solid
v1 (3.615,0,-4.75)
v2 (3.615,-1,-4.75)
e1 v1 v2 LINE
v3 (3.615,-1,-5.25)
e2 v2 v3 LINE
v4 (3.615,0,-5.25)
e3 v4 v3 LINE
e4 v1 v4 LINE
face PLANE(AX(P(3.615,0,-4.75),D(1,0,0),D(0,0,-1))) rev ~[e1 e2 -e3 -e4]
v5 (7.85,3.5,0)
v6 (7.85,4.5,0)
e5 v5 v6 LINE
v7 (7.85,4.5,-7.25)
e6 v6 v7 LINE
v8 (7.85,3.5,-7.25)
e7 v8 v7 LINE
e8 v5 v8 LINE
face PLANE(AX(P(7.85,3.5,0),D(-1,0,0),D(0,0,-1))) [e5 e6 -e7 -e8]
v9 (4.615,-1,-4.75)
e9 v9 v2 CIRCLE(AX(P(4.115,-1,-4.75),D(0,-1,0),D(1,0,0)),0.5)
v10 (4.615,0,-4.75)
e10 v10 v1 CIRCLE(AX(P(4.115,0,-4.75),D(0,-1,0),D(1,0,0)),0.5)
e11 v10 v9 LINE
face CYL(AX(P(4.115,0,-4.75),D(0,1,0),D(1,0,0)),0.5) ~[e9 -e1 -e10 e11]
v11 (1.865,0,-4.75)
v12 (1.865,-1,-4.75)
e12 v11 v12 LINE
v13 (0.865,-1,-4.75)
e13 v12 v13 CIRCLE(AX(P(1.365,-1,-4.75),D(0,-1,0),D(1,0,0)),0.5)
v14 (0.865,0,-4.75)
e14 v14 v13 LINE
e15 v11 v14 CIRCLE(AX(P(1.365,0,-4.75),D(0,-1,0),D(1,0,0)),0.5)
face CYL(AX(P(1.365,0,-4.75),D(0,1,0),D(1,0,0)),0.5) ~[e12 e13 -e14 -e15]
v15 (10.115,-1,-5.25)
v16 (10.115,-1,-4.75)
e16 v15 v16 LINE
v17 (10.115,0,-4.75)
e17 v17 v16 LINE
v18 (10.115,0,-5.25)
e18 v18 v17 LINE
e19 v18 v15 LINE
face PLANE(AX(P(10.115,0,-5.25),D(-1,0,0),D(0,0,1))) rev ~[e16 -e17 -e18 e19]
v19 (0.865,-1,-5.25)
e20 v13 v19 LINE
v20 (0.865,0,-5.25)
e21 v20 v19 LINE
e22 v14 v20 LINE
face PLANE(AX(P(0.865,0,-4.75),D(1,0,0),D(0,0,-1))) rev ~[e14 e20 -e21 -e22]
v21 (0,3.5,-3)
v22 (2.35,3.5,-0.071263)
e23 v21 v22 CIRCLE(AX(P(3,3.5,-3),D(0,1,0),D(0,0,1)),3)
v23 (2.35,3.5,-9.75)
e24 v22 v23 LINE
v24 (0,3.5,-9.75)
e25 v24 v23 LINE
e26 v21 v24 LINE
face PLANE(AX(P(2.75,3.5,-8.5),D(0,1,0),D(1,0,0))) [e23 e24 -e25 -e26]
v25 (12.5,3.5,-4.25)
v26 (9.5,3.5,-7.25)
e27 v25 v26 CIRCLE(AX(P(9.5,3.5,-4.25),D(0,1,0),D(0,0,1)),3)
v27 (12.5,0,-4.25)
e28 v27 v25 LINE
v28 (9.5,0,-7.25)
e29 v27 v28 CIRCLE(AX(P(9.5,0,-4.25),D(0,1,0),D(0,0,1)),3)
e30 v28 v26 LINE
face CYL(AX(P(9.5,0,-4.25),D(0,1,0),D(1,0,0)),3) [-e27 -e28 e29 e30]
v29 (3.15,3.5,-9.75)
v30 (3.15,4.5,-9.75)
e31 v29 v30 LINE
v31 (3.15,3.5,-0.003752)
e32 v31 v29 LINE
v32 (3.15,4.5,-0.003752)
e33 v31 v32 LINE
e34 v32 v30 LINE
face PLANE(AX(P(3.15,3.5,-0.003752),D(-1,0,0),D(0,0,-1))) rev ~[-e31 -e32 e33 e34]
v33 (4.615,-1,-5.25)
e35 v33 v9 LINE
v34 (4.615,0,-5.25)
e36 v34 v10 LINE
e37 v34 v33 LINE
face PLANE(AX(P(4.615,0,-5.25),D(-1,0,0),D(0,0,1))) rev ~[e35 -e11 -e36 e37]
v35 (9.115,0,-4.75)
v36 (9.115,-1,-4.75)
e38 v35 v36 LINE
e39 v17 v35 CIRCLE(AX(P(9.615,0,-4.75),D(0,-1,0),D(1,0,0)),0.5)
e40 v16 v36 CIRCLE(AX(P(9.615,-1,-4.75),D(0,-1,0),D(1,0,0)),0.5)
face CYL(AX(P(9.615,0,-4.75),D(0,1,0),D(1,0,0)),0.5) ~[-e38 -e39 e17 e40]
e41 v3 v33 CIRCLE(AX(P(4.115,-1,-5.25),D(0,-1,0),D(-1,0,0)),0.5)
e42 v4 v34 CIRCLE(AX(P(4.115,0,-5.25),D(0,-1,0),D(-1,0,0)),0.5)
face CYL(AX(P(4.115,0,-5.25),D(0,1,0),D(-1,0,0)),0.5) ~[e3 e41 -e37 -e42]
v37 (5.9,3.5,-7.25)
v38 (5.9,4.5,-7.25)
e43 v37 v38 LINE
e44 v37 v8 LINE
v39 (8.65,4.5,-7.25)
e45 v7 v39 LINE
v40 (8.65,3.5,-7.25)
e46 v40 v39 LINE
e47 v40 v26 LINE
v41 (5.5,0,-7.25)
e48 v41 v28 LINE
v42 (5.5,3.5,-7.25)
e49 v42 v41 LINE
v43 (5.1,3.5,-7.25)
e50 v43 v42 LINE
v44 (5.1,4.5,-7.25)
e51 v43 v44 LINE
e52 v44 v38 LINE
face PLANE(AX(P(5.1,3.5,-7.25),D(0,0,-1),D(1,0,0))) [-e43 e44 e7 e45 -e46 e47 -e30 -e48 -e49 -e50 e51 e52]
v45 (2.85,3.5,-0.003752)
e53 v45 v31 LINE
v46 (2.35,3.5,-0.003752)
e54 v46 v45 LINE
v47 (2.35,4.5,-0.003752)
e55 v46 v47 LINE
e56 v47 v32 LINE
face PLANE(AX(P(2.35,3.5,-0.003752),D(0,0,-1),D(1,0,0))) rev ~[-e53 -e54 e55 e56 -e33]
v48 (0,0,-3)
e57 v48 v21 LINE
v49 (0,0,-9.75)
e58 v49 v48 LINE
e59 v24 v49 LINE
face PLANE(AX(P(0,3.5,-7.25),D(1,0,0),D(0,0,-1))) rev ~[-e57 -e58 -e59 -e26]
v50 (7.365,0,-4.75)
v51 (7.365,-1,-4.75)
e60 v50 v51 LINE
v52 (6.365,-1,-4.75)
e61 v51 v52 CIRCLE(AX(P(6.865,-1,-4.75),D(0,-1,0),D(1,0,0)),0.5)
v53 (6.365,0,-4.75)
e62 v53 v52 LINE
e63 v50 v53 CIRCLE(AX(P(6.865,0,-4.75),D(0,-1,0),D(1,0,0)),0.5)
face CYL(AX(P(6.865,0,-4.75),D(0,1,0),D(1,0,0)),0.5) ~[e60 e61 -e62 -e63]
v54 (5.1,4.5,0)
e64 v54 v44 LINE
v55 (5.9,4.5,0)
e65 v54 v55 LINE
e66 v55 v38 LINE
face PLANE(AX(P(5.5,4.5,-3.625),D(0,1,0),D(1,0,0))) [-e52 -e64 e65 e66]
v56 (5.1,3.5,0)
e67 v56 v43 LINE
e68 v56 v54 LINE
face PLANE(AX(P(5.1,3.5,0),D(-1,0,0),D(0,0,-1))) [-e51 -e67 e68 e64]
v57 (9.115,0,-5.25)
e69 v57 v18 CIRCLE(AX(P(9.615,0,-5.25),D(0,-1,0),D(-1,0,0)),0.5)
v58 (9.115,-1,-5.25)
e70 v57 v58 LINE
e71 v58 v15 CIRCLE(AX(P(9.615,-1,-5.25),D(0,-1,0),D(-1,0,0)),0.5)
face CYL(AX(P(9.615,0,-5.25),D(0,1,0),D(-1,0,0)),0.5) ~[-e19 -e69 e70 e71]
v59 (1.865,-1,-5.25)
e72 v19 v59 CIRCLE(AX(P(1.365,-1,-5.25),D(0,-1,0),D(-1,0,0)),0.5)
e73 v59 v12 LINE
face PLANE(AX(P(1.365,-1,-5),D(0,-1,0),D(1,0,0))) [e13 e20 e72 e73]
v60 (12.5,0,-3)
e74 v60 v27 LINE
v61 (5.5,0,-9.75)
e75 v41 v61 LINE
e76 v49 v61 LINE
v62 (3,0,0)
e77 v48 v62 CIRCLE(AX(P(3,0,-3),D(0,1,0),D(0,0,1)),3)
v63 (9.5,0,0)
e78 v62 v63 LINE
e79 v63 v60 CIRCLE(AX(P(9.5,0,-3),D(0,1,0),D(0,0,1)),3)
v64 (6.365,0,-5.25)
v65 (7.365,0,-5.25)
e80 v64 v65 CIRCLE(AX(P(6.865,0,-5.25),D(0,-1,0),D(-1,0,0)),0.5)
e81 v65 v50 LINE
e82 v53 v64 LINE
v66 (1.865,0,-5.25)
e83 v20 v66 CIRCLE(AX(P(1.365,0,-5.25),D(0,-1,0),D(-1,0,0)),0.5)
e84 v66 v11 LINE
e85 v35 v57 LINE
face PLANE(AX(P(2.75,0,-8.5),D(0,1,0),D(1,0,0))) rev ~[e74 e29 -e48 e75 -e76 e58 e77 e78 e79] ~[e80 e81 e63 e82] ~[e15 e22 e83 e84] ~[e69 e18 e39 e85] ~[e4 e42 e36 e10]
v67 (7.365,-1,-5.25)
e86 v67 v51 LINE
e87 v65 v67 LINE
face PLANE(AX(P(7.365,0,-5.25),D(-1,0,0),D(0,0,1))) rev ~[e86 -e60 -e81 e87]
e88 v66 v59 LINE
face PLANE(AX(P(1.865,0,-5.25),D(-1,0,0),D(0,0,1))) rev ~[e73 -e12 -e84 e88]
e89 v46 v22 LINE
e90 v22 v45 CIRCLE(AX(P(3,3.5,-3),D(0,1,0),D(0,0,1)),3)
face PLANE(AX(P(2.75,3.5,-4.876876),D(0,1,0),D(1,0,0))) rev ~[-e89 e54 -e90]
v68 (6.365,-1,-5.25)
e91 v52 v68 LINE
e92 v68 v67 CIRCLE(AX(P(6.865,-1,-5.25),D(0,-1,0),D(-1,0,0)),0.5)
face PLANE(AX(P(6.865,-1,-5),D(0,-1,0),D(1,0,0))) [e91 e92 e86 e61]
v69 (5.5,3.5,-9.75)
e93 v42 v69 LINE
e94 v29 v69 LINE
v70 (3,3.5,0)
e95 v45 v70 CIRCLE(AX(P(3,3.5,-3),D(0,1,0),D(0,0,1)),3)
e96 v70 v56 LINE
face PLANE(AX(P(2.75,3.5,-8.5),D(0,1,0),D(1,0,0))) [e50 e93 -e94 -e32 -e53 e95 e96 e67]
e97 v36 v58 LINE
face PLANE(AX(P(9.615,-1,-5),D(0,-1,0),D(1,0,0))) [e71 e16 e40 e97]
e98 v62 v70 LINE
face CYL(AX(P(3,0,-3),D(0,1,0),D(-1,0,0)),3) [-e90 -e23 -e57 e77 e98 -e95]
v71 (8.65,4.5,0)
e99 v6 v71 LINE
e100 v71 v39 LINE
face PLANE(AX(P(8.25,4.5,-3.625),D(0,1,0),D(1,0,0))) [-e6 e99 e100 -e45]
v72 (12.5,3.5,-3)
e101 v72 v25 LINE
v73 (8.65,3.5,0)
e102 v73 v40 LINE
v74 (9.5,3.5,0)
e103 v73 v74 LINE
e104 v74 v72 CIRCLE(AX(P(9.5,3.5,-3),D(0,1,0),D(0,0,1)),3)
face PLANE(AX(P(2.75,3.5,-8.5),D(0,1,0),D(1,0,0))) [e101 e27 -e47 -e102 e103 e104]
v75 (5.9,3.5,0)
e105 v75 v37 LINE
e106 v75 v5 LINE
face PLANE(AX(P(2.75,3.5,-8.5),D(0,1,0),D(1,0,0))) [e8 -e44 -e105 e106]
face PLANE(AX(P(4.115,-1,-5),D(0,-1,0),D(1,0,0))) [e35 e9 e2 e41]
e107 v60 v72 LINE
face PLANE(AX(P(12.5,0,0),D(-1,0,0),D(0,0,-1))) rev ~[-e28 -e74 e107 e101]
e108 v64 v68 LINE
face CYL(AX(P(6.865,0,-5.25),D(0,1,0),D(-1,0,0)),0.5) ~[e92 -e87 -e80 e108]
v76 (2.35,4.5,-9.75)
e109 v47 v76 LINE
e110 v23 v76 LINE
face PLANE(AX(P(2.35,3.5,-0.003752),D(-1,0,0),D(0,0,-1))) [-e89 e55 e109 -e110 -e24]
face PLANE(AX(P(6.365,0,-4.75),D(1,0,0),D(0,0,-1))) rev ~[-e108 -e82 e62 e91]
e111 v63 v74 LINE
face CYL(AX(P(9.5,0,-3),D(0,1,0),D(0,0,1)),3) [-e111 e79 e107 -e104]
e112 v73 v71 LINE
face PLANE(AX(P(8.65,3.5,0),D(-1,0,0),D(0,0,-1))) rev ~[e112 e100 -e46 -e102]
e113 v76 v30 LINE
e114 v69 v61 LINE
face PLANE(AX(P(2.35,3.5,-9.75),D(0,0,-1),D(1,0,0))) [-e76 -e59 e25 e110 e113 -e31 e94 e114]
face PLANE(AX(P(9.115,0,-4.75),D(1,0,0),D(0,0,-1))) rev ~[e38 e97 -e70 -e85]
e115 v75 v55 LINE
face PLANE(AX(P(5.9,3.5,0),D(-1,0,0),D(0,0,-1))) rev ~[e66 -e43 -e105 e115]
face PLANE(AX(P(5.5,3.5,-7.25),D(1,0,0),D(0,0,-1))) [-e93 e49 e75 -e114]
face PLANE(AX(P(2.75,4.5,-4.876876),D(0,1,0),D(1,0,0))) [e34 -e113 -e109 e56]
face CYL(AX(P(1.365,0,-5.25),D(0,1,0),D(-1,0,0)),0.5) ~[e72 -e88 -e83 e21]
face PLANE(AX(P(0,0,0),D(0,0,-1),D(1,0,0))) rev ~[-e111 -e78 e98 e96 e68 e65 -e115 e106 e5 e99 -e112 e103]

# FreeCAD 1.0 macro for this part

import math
import FreeCAD as App
import Part
import Sketcher
from FreeCAD import Vector
Q = App.Units.Quantity


def edges_at(feature, points):
    """Names of the edges that pass closest to the given points."""
    edges = feature.Shape.Edges
    near = lambda p: min(range(len(edges)), key=lambda i: edges[i].distToShape(Part.Vertex(*p))[0])
    return sorted({f"Edge{near(p) + 1}" for p in points})

doc = App.newDocument("Part")
params = doc.addObject("Spreadsheet::Sheet", "Params")
for row, (alias, value) in enumerate([
    ("sketch1_width", "12.5 mm"),
    ("sketch1_height", "7.25 mm"),
    ("pad1_length", "3.5 mm"),
    ("fillet_radius", "3 mm"),
    ("sketch2_width", "5.5 mm"),
    ("sketch2_height", "2.5 mm"),
    ("pad2_length", "3.5 mm"),
    ("sketch3_width", "0.8 mm"),
    ("sketch3_height", "7.25 mm"),
    ("pad3_length", "1 mm"),
    ("sketch4_radius", "0.5 mm"),
    ("sketch4_height", "0.5 mm"),
    ("pad4_length", "1 mm"),
], start=1):
    params.set(f"A{row}", alias)
    params.set(f"B{row}", "=" + value)
    params.setAlias(f"B{row}", alias)

body = doc.addObject("PartDesign::Body", "Body")

sketch1 = doc.addObject("Sketcher::SketchObject", "Sketch")
body.addObject(sketch1)
sketch1.AttachmentSupport = (doc.XZ_Plane, [""])
sketch1.MapMode = "FlatFace"
sketch1.addGeometry([
    Part.LineSegment(Vector(0, -7, 0), Vector(0, 0, 0)),
    Part.LineSegment(Vector(0, 0, 0), Vector(12, 0, 0)),
    Part.LineSegment(Vector(12, 0, 0), Vector(12, -7, 0)),
    Part.LineSegment(Vector(12, -7, 0), Vector(0, -7, 0)),
], False)
sketch1.addConstraint([
    Sketcher.Constraint("Coincident", 0, 2, 1, 1),
    Sketcher.Constraint("Coincident", 1, 2, 2, 1),
    Sketcher.Constraint("Coincident", 2, 2, 3, 1),
    Sketcher.Constraint("Coincident", 3, 2, 0, 1),
    Sketcher.Constraint("Vertical", 0),
    Sketcher.Constraint("Horizontal", 1),
    Sketcher.Constraint("Vertical", 2),
    Sketcher.Constraint("Horizontal", 3),
    Sketcher.Constraint("Coincident", 0, 2, -1, 1),
    Sketcher.Constraint("DistanceX", 1, 1, 1, 2, Q("12.5 mm")),
    Sketcher.Constraint("DistanceY", 0, 1, 0, 2, Q("7.25 mm")),
])
sketch1.setExpression("Constraints[9]", "Params.sketch1_width")
sketch1.setExpression("Constraints[10]", "Params.sketch1_height")
pad1 = doc.addObject("PartDesign::Pad", "Pad")
body.addObject(pad1)
pad1.Profile = sketch1
pad1.setExpression("Length", "Params.pad1_length")
pad1.Reversed = True
doc.recompute()

fillet = doc.addObject("PartDesign::Fillet", "Fillet")
body.addObject(fillet)
fillet.Base = (pad1, edges_at(pad1, [(12.5, 1.75, -7.25), (12.5, 1.75, 0), (0, 1.75, 0)]))
fillet.setExpression("Radius", "Params.fillet_radius")

sketch2 = doc.addObject("Sketcher::SketchObject", "Sketch001")
body.addObject(sketch2)
sketch2.AttachmentSupport = (doc.XZ_Plane, [""])
sketch2.MapMode = "FlatFace"
sketch2.AttachmentOffset = App.Placement(Vector(0, 0, -3.5), App.Rotation())
sketch2.addGeometry([
    Part.LineSegment(Vector(0, -9.8, 0), Vector(0, -7.2, 0)),
    Part.LineSegment(Vector(0, -7.2, 0), Vector(5.5, -7.2, 0)),
    Part.LineSegment(Vector(5.5, -7.2, 0), Vector(5.5, -9.8, 0)),
    Part.LineSegment(Vector(5.5, -9.8, 0), Vector(0, -9.8, 0)),
], False)
sketch2.addConstraint([
    Sketcher.Constraint("Coincident", 0, 2, 1, 1),
    Sketcher.Constraint("Coincident", 1, 2, 2, 1),
    Sketcher.Constraint("Coincident", 2, 2, 3, 1),
    Sketcher.Constraint("Coincident", 3, 2, 0, 1),
    Sketcher.Constraint("Vertical", 0),
    Sketcher.Constraint("Horizontal", 1),
    Sketcher.Constraint("Vertical", 2),
    Sketcher.Constraint("Horizontal", 3),
    Sketcher.Constraint("PointOnObject", 0, 2, -2),
    Sketcher.Constraint("DistanceX", 1, 1, 1, 2, Q("5.5 mm")),
    Sketcher.Constraint("DistanceY", 0, 1, 0, 2, Q("2.5 mm")),
    Sketcher.Constraint("DistanceY", 0, 2, -1, 1, Q("7.25 mm")),
])
sketch2.setExpression("Constraints[9]", "Params.sketch2_width")
sketch2.setExpression("Constraints[10]", "Params.sketch2_height")
pad2 = doc.addObject("PartDesign::Pad", "Pad001")
body.addObject(pad2)
pad2.Profile = sketch2
pad2.setExpression("Length", "Params.pad2_length")

sketch3 = doc.addObject("Sketcher::SketchObject", "Sketch002")
body.addObject(sketch3)
sketch3.AttachmentSupport = (doc.XZ_Plane, [""])
sketch3.MapMode = "FlatFace"
sketch3.AttachmentOffset = App.Placement(Vector(0, 0, -3.5), App.Rotation())
sketch3.addGeometry([
    Part.LineSegment(Vector(2.4, -9.8, 0), Vector(2.4, 0, 0)),
    Part.LineSegment(Vector(2.4, 0, 0), Vector(3.1, 0, 0)),
    Part.LineSegment(Vector(3.1, 0, 0), Vector(3.1, -9.8, 0)),
    Part.LineSegment(Vector(3.1, -9.8, 0), Vector(2.4, -9.8, 0)),
    Part.LineSegment(Vector(5.1, -7.2, 0), Vector(5.1, 0, 0)),
    Part.LineSegment(Vector(5.1, 0, 0), Vector(5.9, 0, 0)),
    Part.LineSegment(Vector(5.9, 0, 0), Vector(5.9, -7.2, 0)),
    Part.LineSegment(Vector(5.9, -7.2, 0), Vector(5.1, -7.2, 0)),
    Part.LineSegment(Vector(7.8, -7.2, 0), Vector(7.8, 0, 0)),
    Part.LineSegment(Vector(7.8, 0, 0), Vector(8.7, 0, 0)),
    Part.LineSegment(Vector(8.7, 0, 0), Vector(8.7, -7.2, 0)),
    Part.LineSegment(Vector(8.7, -7.2, 0), Vector(7.8, -7.2, 0)),
], False)
sketch3.addConstraint([
    Sketcher.Constraint("Coincident", 0, 2, 1, 1),
    Sketcher.Constraint("Coincident", 1, 2, 2, 1),
    Sketcher.Constraint("Coincident", 2, 2, 3, 1),
    Sketcher.Constraint("Coincident", 3, 2, 0, 1),
    Sketcher.Constraint("Coincident", 4, 2, 5, 1),
    Sketcher.Constraint("Coincident", 5, 2, 6, 1),
    Sketcher.Constraint("Coincident", 6, 2, 7, 1),
    Sketcher.Constraint("Coincident", 7, 2, 4, 1),
    Sketcher.Constraint("Coincident", 8, 2, 9, 1),
    Sketcher.Constraint("Coincident", 9, 2, 10, 1),
    Sketcher.Constraint("Coincident", 10, 2, 11, 1),
    Sketcher.Constraint("Coincident", 11, 2, 8, 1),
    Sketcher.Constraint("Vertical", 0),
    Sketcher.Constraint("Horizontal", 1),
    Sketcher.Constraint("Vertical", 2),
    Sketcher.Constraint("Horizontal", 3),
    Sketcher.Constraint("Vertical", 4),
    Sketcher.Constraint("Horizontal", 5),
    Sketcher.Constraint("Vertical", 6),
    Sketcher.Constraint("Horizontal", 7),
    Sketcher.Constraint("Vertical", 8),
    Sketcher.Constraint("Horizontal", 9),
    Sketcher.Constraint("Vertical", 10),
    Sketcher.Constraint("Horizontal", 11),
    Sketcher.Constraint("PointOnObject", 4, 2, -1),
    Sketcher.Constraint("PointOnObject", 8, 2, -1),
    Sketcher.Constraint("Horizontal", 7, 2, 10, 2),
    Sketcher.Constraint("Equal", 3, 5),
    Sketcher.Constraint("Equal", 7, 9),
    Sketcher.Constraint("DistanceX", 1, 1, 1, 2, Q("0.8 mm")),
    Sketcher.Constraint("DistanceY", 4, 1, 4, 2, Q("7.25 mm")),
    Sketcher.Constraint("DistanceX", -1, 1, 4, 2, Q("5.1 mm")),
    Sketcher.Constraint("DistanceY", 2, 2, 6, 2, Q("2.5 mm")),
    Sketcher.Constraint("DistanceX", 1, 2, 8, 2, Q("4.7 mm")),
    Sketcher.Constraint("DistanceX", -1, 1, 0, 2, Q("2.35 mm")),
    Sketcher.Constraint("DistanceY", 0, 1, 0, 2, Q("9.746248 mm")),
])
sketch3.setExpression("Constraints[29]", "Params.sketch3_width")
sketch3.setExpression("Constraints[30]", "Params.sketch3_height")
pad3 = doc.addObject("PartDesign::Pad", "Pad002")
body.addObject(pad3)
pad3.Profile = sketch3
pad3.setExpression("Length", "Params.pad3_length")
pad3.Reversed = True

sketch4 = doc.addObject("Sketcher::SketchObject", "Sketch003")
body.addObject(sketch4)
sketch4.AttachmentSupport = (doc.XZ_Plane, [""])
sketch4.MapMode = "FlatFace"
sketch4.addGeometry([
    Part.LineSegment(Vector(6.4, -4.8, 0), Vector(6.4, -5.2, 0)),
    Part.ArcOfCircle(Part.Circle(Vector(6.9, -5.2, 0), Vector(0, 0, 1), 0.5), math.radians(180), math.radians(360)),
    Part.LineSegment(Vector(7.4, -5.2, 0), Vector(7.4, -4.8, 0)),
    Part.ArcOfCircle(Part.Circle(Vector(6.9, -4.8, 0), Vector(0, 0, 1), 0.5), math.radians(0), math.radians(180)),
    Part.LineSegment(Vector(9.1, -4.8, 0), Vector(9.1, -5.2, 0)),
    Part.ArcOfCircle(Part.Circle(Vector(9.6, -5.2, 0), Vector(0, 0, 1), 0.5), math.radians(180), math.radians(360)),
    Part.LineSegment(Vector(10.1, -5.2, 0), Vector(10.1, -4.8, 0)),
    Part.ArcOfCircle(Part.Circle(Vector(9.6, -4.8, 0), Vector(0, 0, 1), 0.5), math.radians(0), math.radians(180)),
    Part.LineSegment(Vector(4.6, -5.2, 0), Vector(4.6, -4.8, 0)),
    Part.ArcOfCircle(Part.Circle(Vector(4.1, -4.8, 0), Vector(0, 0, 1), 0.5), math.radians(0), math.radians(180)),
    Part.LineSegment(Vector(3.6, -4.8, 0), Vector(3.6, -5.2, 0)),
    Part.ArcOfCircle(Part.Circle(Vector(4.1, -5.2, 0), Vector(0, 0, 1), 0.5), math.radians(180), math.radians(360)),
    Part.LineSegment(Vector(0.9, -4.8, 0), Vector(0.9, -5.2, 0)),
    Part.ArcOfCircle(Part.Circle(Vector(1.4, -5.2, 0), Vector(0, 0, 1), 0.5), math.radians(180), math.radians(360)),
    Part.LineSegment(Vector(1.9, -5.2, 0), Vector(1.9, -4.8, 0)),
    Part.ArcOfCircle(Part.Circle(Vector(1.4, -4.8, 0), Vector(0, 0, 1), 0.5), math.radians(0), math.radians(180)),
], False)
sketch4.addConstraint([
    Sketcher.Constraint("Tangent", 0, 2, 1, 1),
    Sketcher.Constraint("Tangent", 1, 2, 2, 1),
    Sketcher.Constraint("Tangent", 2, 2, 3, 1),
    Sketcher.Constraint("Tangent", 3, 2, 0, 1),
    Sketcher.Constraint("Tangent", 4, 2, 5, 1),
    Sketcher.Constraint("Tangent", 5, 2, 6, 1),
    Sketcher.Constraint("Tangent", 6, 2, 7, 1),
    Sketcher.Constraint("Tangent", 7, 2, 4, 1),
    Sketcher.Constraint("Tangent", 8, 2, 9, 1),
    Sketcher.Constraint("Tangent", 9, 2, 10, 1),
    Sketcher.Constraint("Tangent", 10, 2, 11, 1),
    Sketcher.Constraint("Tangent", 11, 2, 8, 1),
    Sketcher.Constraint("Tangent", 12, 2, 13, 1),
    Sketcher.Constraint("Tangent", 13, 2, 14, 1),
    Sketcher.Constraint("Tangent", 14, 2, 15, 1),
    Sketcher.Constraint("Tangent", 15, 2, 12, 1),
    Sketcher.Constraint("Vertical", 0),
    Sketcher.Constraint("Vertical", 2),
    Sketcher.Constraint("Vertical", 4),
    Sketcher.Constraint("Vertical", 6),
    Sketcher.Constraint("Vertical", 8),
    Sketcher.Constraint("Vertical", 10),
    Sketcher.Constraint("Vertical", 12),
    Sketcher.Constraint("Vertical", 14),
    Sketcher.Constraint("Equal", 3, 5),
    Sketcher.Constraint("Equal", 7, 9),
    Sketcher.Constraint("Equal", 11, 13),
    Sketcher.Constraint("Horizontal", 1, 3, 5, 3),
    Sketcher.Constraint("Horizontal", 3, 3, 7, 3),
    Sketcher.Constraint("Horizontal", 7, 3, 9, 3),
    Sketcher.Constraint("Horizontal", 5, 3, 11, 3),
    Sketcher.Constraint("Horizontal", 11, 3, 13, 3),
    Sketcher.Constraint("Horizontal", 9, 3, 15, 3),
    Sketcher.Constraint("Radius", 1, Q("0.5 mm")),
    Sketcher.Constraint("DistanceY", 0, 2, 0, 1, Q("0.5 mm")),
    Sketcher.Constraint("DistanceX", 9, 3, 7, 3, Q("5.5 mm")),
    Sketcher.Constraint("DistanceX", 13, 3, 1, 3, Q("5.5 mm")),
    Sketcher.Constraint("DistanceY", 1, 3, -1, 1, Q("5.25 mm")),
    Sketcher.Constraint("DistanceX", 1, 3, 5, 3, Q("2.75 mm")),
    Sketcher.Constraint("DistanceX", -1, 1, 1, 3, Q("6.865 mm")),
])
sketch4.setExpression("Constraints[33]", "Params.sketch4_radius")
sketch4.setExpression("Constraints[34]", "Params.sketch4_height")
pad4 = doc.addObject("PartDesign::Pad", "Pad003")
body.addObject(pad4)
pad4.Profile = sketch4
pad4.setExpression("Length", "Params.pad4_length")

doc.recompute()
